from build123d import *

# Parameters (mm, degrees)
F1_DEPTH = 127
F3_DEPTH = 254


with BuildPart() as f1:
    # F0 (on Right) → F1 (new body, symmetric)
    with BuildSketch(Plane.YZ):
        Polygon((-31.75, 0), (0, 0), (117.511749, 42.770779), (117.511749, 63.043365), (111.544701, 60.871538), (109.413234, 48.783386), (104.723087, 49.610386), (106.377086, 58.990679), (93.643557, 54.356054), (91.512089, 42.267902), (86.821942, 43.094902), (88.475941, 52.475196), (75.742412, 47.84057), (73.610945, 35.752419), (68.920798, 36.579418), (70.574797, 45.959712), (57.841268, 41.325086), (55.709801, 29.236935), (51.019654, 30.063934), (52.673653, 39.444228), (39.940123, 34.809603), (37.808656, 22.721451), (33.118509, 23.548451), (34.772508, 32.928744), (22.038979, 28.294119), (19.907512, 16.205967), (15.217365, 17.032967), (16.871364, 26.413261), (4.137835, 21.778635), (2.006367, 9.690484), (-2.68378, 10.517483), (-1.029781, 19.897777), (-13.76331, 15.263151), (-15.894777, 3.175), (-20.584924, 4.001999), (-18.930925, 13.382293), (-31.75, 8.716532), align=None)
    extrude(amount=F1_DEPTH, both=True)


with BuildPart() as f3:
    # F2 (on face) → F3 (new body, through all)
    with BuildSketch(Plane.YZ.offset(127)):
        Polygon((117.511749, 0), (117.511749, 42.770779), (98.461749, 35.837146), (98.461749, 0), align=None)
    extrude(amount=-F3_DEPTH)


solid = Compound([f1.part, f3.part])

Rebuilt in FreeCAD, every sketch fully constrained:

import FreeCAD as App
import Part
import Sketcher
Q = App.Units.Quantity


def add_polygon(sketch, points):
    """Adds a closed chain of lines whose ends are joined by coincident constraints."""
    first, n = sketch.GeometryCount, len(points)
    for a, b in zip(points, points[1:] + points[:1]):
        sketch.addGeometry(Part.LineSegment(App.Vector(*a, 0), App.Vector(*b, 0)), False)
    for i in range(n):
        sketch.addConstraint(Sketcher.Constraint("Coincident", first + i, 2, first + (i + 1) % n, 1))

doc = App.newDocument("Part")
body = doc.addObject("PartDesign::Body", "Body")

# Sketch on YZ plane
sketch1 = body.newObject("Sketcher::SketchObject", "Sketch")
sketch1.AttachmentSupport = (doc.getObject("YZ_Plane"), [""])
sketch1.MapMode = "FlatFace"
add_polygon(sketch1, [(-31.8, 0), (0, 0), (117.5, 42.8), (117.5, 63), (111.5, 60.9), (109.4, 48.8), (104.7, 49.6), (106.4, 59), (93.6, 54.4), (91.5, 42.3), (86.8, 43.1), (88.5, 52.5), (75.7, 47.8), (73.6, 35.8), (68.9, 36.6), (70.6, 46), (57.8, 41.3), (55.7, 29.2), (51, 30.1), (52.7, 39.4), (39.9, 34.8), (37.8, 22.7), (33.1, 23.5), (34.8, 32.9), (22, 28.3), (19.9, 16.2), (15.2, 17), (16.9, 26.4), (4.1, 21.8), (2, 9.7), (-2.7, 10.5), (-1, 19.9), (-13.8, 15.3), (-15.9, 3.2), (-20.6, 4), (-18.9, 13.4), (-31.8, 8.7)])  # lines 0-36
sketch1.addConstraint([
    Sketcher.Constraint("Horizontal", 0),
    Sketcher.Constraint("Vertical", 2),
    Sketcher.Constraint("Vertical", 36),
    Sketcher.Constraint("Coincident", 0, 2, -1, 1),
    Sketcher.Constraint("Parallel", 1, 3),
    Sketcher.Constraint("Perpendicular", 4, 5),
    Sketcher.Constraint("Perpendicular", 5, 6),
    Sketcher.Constraint("Parallel", 3, 7),
    Sketcher.Constraint("Parallel", 6, 8),
    Sketcher.Constraint("Perpendicular", 8, 9),
    Sketcher.Constraint("Perpendicular", 9, 10),
    Sketcher.Constraint("Parallel", 7, 11),
    Sketcher.Constraint("Parallel", 10, 12),
    Sketcher.Constraint("Perpendicular", 12, 13),
    Sketcher.Constraint("Perpendicular", 13, 14),
    Sketcher.Constraint("Parallel", 11, 15),
    Sketcher.Constraint("Parallel", 14, 16),
    Sketcher.Constraint("Perpendicular", 16, 17),
    Sketcher.Constraint("Perpendicular", 17, 18),
    Sketcher.Constraint("Parallel", 15, 19),
    Sketcher.Constraint("Parallel", 18, 20),
    Sketcher.Constraint("Perpendicular", 20, 21),
    Sketcher.Constraint("Perpendicular", 21, 22),
    Sketcher.Constraint("Parallel", 19, 23),
    Sketcher.Constraint("Parallel", 22, 24),
    Sketcher.Constraint("Perpendicular", 24, 25),
    Sketcher.Constraint("Perpendicular", 25, 26),
    Sketcher.Constraint("Parallel", 23, 27),
    Sketcher.Constraint("Parallel", 26, 28),
    Sketcher.Constraint("Perpendicular", 28, 29),
    Sketcher.Constraint("Perpendicular", 29, 30),
    Sketcher.Constraint("Parallel", 27, 31),
    Sketcher.Constraint("Parallel", 30, 32),
    Sketcher.Constraint("Perpendicular", 32, 33),
    Sketcher.Constraint("Perpendicular", 33, 34),
    Sketcher.Constraint("Parallel", 31, 35),
    Sketcher.Constraint("Equal", 4, 8),
    Sketcher.Constraint("Equal", 5, 9),
    Sketcher.Constraint("Equal", 6, 10),
    Sketcher.Constraint("Equal", 7, 11),
    Sketcher.Constraint("Equal", 8, 12),
    Sketcher.Constraint("Equal", 9, 13),
    Sketcher.Constraint("Equal", 10, 14),
    Sketcher.Constraint("Equal", 11, 15),
    Sketcher.Constraint("Equal", 12, 16),
    Sketcher.Constraint("Equal", 13, 17),
    Sketcher.Constraint("Equal", 14, 18),
    Sketcher.Constraint("Equal", 15, 19),
    Sketcher.Constraint("Equal", 16, 20),
    Sketcher.Constraint("Equal", 17, 21),
    Sketcher.Constraint("Equal", 18, 22),
    Sketcher.Constraint("Equal", 19, 23),
    Sketcher.Constraint("Equal", 20, 24),
    Sketcher.Constraint("Equal", 21, 25),
    Sketcher.Constraint("Equal", 22, 26),
    Sketcher.Constraint("Equal", 23, 27),
    Sketcher.Constraint("Equal", 24, 28),
    Sketcher.Constraint("Equal", 25, 29),
    Sketcher.Constraint("Equal", 26, 30),
    Sketcher.Constraint("Equal", 27, 31),
    Sketcher.Constraint("Equal", 28, 32),
    Sketcher.Constraint("Equal", 29, 33),
    Sketcher.Constraint("Equal", 30, 34),
    Sketcher.Constraint("Angle", 1, Q("20 deg")),
    Sketcher.Constraint("Angle", 4, Q("-99.999998 deg")),
    Sketcher.Constraint("DistanceX", 0, 1, 0, 2, Q("1.25 in")),
    Sketcher.Constraint("Distance", 3, Q("0.25 in")),
    Sketcher.Constraint("Distance", 5, Q("0.1875 in")),
    Sketcher.Constraint("Distance", 6, Q("0.375 in")),
    Sketcher.Constraint("DistanceY", -1, 1, 32, 2, Q("0.125 in")),
    Sketcher.Constraint("DistanceX", -1, 1, 3, 2, Q("111.544701 mm")),
    Sketcher.Constraint("DistanceY", -1, 1, 9, 2, Q("43.094902 mm")),
    Sketcher.Constraint("DistanceX", -1, 1, 13, 2, Q("68.920798 mm")),
])
pad1 = body.newObject("PartDesign::Pad", "Pad")
pad1.Profile = sketch1
pad1.Length = Q("10 in")
pad1.Midplane = True
body2 = doc.addObject("PartDesign::Body", "Body001")

# Sketch on YZ plane
sketch2 = body2.newObject("Sketcher::SketchObject", "Sketch001")
sketch2.AttachmentSupport = (doc.getObject("YZ_Plane001"), [""])
sketch2.MapMode = "FlatFace"
sketch2.AttachmentOffset = App.Placement(App.Vector(0, 0, 5 * 25.4), App.Rotation())
add_polygon(sketch2, [(118, 0), (118, 43), (98, 36), (98, 0)])  # lines 0-3
sketch2.addConstraint([
    Sketcher.Constraint("Vertical", 0),
    Sketcher.Constraint("Vertical", 2),
    Sketcher.Constraint("Horizontal", 3),
    Sketcher.Constraint("PointOnObject", 2, 2, -1),
    Sketcher.Constraint("Angle", 1, Q("-160 deg")),
    Sketcher.Constraint("DistanceX", 3, 1, 3, 2, Q("0.75 in")),
    Sketcher.Constraint("DistanceY", 0, 1, 0, 2, Q("42.770779 mm")),
    Sketcher.Constraint("DistanceX", -1, 1, 0, 2, Q("117.511749 mm")),
])
pad2 = body2.newObject("PartDesign::Pad", "Pad001")
pad2.Profile = sketch2
pad2.Length = Q("10 in")
pad2.Reversed = True

doc.recompute()
